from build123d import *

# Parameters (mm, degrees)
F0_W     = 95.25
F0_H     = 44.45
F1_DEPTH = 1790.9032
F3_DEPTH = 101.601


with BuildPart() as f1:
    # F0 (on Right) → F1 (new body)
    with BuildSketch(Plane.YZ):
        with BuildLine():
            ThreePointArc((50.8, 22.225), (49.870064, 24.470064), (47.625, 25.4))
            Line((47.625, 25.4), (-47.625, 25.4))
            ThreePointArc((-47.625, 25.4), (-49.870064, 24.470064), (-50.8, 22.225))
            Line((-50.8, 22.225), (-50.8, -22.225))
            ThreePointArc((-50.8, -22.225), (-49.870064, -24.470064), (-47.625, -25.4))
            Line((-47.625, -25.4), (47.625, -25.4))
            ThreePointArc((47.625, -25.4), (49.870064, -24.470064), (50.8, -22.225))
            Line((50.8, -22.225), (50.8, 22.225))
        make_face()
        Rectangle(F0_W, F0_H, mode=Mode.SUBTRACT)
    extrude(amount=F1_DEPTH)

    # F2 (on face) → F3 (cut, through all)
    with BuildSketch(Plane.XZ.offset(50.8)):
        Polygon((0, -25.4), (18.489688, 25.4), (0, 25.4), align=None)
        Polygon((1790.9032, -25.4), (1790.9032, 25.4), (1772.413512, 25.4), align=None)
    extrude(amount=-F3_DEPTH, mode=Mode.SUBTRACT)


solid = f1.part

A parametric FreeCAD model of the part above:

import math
import FreeCAD as App
import Part
import Sketcher

V = App.Vector
Q = App.Units.Quantity

doc = App.newDocument("Part")
params = doc.addObject("Spreadsheet::Sheet", "Params")
for row, (alias, value) in enumerate([
    ("sketch1_radius", "0.125 in"),
    ("pad1_length", "70.508 in"),
    ("sketch2_height", "2 in"),
], start=1):
    params.set(f"A{row}", alias)
    params.set(f"B{row}", "=" + value)
    params.setAlias(f"B{row}", alias)

body = doc.addObject("PartDesign::Body", "Body")

sketch1 = body.newObject("Sketcher::SketchObject", "Sketch")
sketch1.AttachmentSupport = (doc.getObject("YZ_Plane"), [""])
sketch1.MapMode = "FlatFace"
sketch1.addGeometry([
    Part.ArcOfCircle(Part.Circle(V(47.6, 22.2, 0), V(0, 0, 1), 3.2), math.radians(0), math.radians(90)),
    Part.LineSegment(V(47.6, 25.4, 0), V(-47.6, 25.4, 0)),
    Part.ArcOfCircle(Part.Circle(V(-47.6, 22.2, 0), V(0, 0, 1), 3.2), math.radians(90), math.radians(180)),
    Part.LineSegment(V(-50.8, 22.2, 0), V(-50.8, -22.2, 0)),
    Part.ArcOfCircle(Part.Circle(V(-47.6, -22.2, 0), V(0, 0, 1), 3.2), math.radians(-180), math.radians(-90)),
    Part.LineSegment(V(-47.6, -25.4, 0), V(47.6, -25.4, 0)),
    Part.ArcOfCircle(Part.Circle(V(47.6, -22.2, 0), V(0, 0, 1), 3.2), math.radians(-90), math.radians(0)),
    Part.LineSegment(V(50.8, -22.2, 0), V(50.8, 22.2, 0)),
    Part.LineSegment(V(47.6, -22.2, 0), V(-47.6, -22.2, 0)),
    Part.LineSegment(V(-47.6, -22.2, 0), V(-47.6, 22.2, 0)),
    Part.LineSegment(V(-47.6, 22.2, 0), V(47.6, 22.2, 0)),
    Part.LineSegment(V(47.6, 22.2, 0), V(47.6, -22.2, 0)),
], False)
sketch1.addConstraint([
    Sketcher.Constraint("Tangent", 0, 2, 1, 1),
    Sketcher.Constraint("Tangent", 1, 2, 2, 1),
    Sketcher.Constraint("Tangent", 2, 2, 3, 1),
    Sketcher.Constraint("Tangent", 3, 2, 4, 1),
    Sketcher.Constraint("Tangent", 4, 2, 5, 1),
    Sketcher.Constraint("Tangent", 5, 2, 6, 1),
    Sketcher.Constraint("Tangent", 6, 2, 7, 1),
    Sketcher.Constraint("Tangent", 7, 2, 0, 1),
    Sketcher.Constraint("Coincident", 8, 2, 9, 1),
    Sketcher.Constraint("Coincident", 9, 2, 10, 1),
    Sketcher.Constraint("Coincident", 10, 2, 11, 1),
    Sketcher.Constraint("Coincident", 11, 2, 8, 1),
    Sketcher.Constraint("Horizontal", 1),
    Sketcher.Constraint("Vertical", 3),
    Sketcher.Constraint("Horizontal", 5),
    Sketcher.Constraint("Vertical", 7),
    Sketcher.Constraint("Horizontal", 8),
    Sketcher.Constraint("Vertical", 9),
    Sketcher.Constraint("Horizontal", 10),
    Sketcher.Constraint("Vertical", 11),
    Sketcher.Constraint("Coincident", 8, 2, 4, 3),
    Sketcher.Constraint("Coincident", 9, 2, 2, 3),
    Sketcher.Constraint("Coincident", 10, 2, 0, 3),
    Sketcher.Constraint("Equal", 4, 6),
    Sketcher.Constraint("Symmetric", 0, 3, 4, 3, -1, 1),
    Sketcher.Constraint("DistanceY", -1, 1, 0, 2, Q("1 in")),
    Sketcher.Constraint("DistanceX", 2, 2, -1, 1, Q("2 in")),
    Sketcher.Constraint("Radius", 0, Q("0.125 in")),
])
sketch1.setExpression("Constraints[27]", "Params.sketch1_radius")
pad1 = body.newObject("PartDesign::Pad", "Pad")
pad1.Profile = sketch1
pad1.setExpression("Length", "Params.pad1_length")

sketch2 = body.newObject("Sketcher::SketchObject", "Sketch001")
sketch2.AttachmentSupport = (doc.getObject("XZ_Plane"), [""])
sketch2.MapMode = "FlatFace"
sketch2.AttachmentOffset = App.Placement(V(0, 0, 2 * 25.4), App.Rotation())
sketch2.addGeometry([
    Part.LineSegment(V(0, -25, 0), V(18, 25, 0)),
    Part.LineSegment(V(18, 25, 0), V(0, 25, 0)),
    Part.LineSegment(V(0, 25, 0), V(0, -25, 0)),
    Part.LineSegment(V(1791, -25, 0), V(1791, 25, 0)),
    Part.LineSegment(V(1791, 25, 0), V(1772, 25, 0)),
    Part.LineSegment(V(1772, 25, 0), V(1791, -25, 0)),
], False)
sketch2.addConstraint([
    Sketcher.Constraint("Coincident", 0, 2, 1, 1),
    Sketcher.Constraint("Coincident", 1, 2, 2, 1),
    Sketcher.Constraint("Coincident", 2, 2, 0, 1),
    Sketcher.Constraint("Coincident", 3, 2, 4, 1),
    Sketcher.Constraint("Coincident", 4, 2, 5, 1),
    Sketcher.Constraint("Coincident", 5, 2, 3, 1),
    Sketcher.Constraint("Horizontal", 1),
    Sketcher.Constraint("Vertical", 2),
    Sketcher.Constraint("Vertical", 3),
    Sketcher.Constraint("Horizontal", 4),
    Sketcher.Constraint("Symmetric", 1, 2, 2, 2, -1, 1),
    Sketcher.Constraint("Horizontal", 1, 2, 3, 2),
    Sketcher.Constraint("Horizontal", 2, 2, 5, 2),
    Sketcher.Constraint("Equal", 1, 4),
    Sketcher.Constraint("DistanceY", 2, 2, 2, 1, Q("2 in")),
    Sketcher.Constraint("Angle", 0, Q("70 deg")),
    Sketcher.Constraint("DistanceX", -1, 1, 3, 2, Q("70.508 in")),
])
sketch2.setExpression("Constraints[14]", "Params.sketch2_height")
pocket1 = body.newObject("PartDesign::Pocket", "Pocket")
pocket1.Profile = sketch2
pocket1.Type = "ThroughAll"

doc.recompute()
